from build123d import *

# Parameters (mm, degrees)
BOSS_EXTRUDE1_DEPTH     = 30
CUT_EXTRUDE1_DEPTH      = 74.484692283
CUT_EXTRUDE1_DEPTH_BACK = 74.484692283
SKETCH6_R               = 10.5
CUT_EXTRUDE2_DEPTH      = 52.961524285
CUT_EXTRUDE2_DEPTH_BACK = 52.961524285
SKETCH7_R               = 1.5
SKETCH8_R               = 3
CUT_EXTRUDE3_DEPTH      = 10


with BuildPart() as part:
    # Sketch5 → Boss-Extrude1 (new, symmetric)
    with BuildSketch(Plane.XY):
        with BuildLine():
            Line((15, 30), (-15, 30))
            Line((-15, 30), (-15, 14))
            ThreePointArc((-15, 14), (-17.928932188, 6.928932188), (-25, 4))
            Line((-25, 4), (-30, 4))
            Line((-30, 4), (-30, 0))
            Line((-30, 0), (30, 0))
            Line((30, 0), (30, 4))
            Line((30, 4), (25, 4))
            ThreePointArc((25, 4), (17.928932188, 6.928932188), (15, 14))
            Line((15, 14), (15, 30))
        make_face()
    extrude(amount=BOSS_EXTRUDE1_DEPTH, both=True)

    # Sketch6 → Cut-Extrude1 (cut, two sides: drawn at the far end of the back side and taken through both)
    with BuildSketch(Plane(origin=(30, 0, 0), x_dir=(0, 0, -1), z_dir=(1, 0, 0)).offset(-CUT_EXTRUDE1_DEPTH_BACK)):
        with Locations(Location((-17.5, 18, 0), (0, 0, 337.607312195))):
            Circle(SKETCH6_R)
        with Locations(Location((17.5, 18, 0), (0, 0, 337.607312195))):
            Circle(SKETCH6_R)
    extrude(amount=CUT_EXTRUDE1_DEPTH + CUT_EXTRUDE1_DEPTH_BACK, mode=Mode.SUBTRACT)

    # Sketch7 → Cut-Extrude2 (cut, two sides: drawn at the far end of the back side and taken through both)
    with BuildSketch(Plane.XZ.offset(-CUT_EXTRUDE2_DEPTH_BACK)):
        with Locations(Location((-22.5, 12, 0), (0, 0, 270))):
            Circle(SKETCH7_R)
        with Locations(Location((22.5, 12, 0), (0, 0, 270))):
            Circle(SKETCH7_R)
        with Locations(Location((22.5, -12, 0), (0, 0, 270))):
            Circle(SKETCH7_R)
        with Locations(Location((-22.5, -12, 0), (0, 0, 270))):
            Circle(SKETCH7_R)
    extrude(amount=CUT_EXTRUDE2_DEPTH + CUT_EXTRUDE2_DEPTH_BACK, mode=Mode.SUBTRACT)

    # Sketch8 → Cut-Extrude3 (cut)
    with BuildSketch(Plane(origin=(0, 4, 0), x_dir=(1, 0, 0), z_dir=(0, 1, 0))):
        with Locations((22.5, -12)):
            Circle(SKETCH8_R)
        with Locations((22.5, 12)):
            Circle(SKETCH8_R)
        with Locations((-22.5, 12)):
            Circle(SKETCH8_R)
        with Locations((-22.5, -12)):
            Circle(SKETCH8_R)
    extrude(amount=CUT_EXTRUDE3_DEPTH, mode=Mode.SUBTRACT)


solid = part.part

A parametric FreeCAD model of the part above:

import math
import FreeCAD as App
import Part
import Sketcher
from FreeCAD import Vector
Q = App.Units.Quantity

doc = App.newDocument("Part")
body = doc.addObject("PartDesign::Body", "Body")

# Sketch on XY plane
sketch1 = doc.addObject("Sketcher::SketchObject", "Sketch")
body.addObject(sketch1)
sketch1.AttachmentSupport = (doc.XY_Plane, [""])
sketch1.MapMode = "FlatFace"
sketch1.addGeometry(Part.LineSegment(Vector(15, 30, 0), Vector(-15, 30, 0)), False)
sketch1.addGeometry(Part.LineSegment(Vector(-15, 30, 0), Vector(-15, 14, 0)), False)
sketch1.addGeometry(Part.ArcOfCircle(Part.Circle(Vector(-25, 14, 0), Vector(0, 0, 1), 10), math.radians(-90), math.radians(0)), False)
sketch1.addGeometry(Part.LineSegment(Vector(-25, 4, 0), Vector(-30, 4, 0)), False)
sketch1.addGeometry(Part.LineSegment(Vector(-30, 4, 0), Vector(-30, 0, 0)), False)
sketch1.addGeometry(Part.LineSegment(Vector(-30, 0, 0), Vector(30, 0, 0)), False)
sketch1.addGeometry(Part.LineSegment(Vector(30, 0, 0), Vector(30, 4, 0)), False)
sketch1.addGeometry(Part.LineSegment(Vector(30, 4, 0), Vector(25, 4, 0)), False)
sketch1.addGeometry(Part.ArcOfCircle(Part.Circle(Vector(25, 14, 0), Vector(0, 0, 1), 10), math.radians(180), math.radians(270)), False)
sketch1.addGeometry(Part.LineSegment(Vector(15, 14, 0), Vector(15, 30, 0)), False)
sketch1.addConstraint(Sketcher.Constraint("Coincident", 0, 2, 1, 1))
sketch1.addConstraint(Sketcher.Constraint("Tangent", 1, 2, 2, 2))
sketch1.addConstraint(Sketcher.Constraint("Tangent", 2, 1, 3, 1))
sketch1.addConstraint(Sketcher.Constraint("Coincident", 3, 2, 4, 1))
sketch1.addConstraint(Sketcher.Constraint("Coincident", 4, 2, 5, 1))
sketch1.addConstraint(Sketcher.Constraint("Coincident", 5, 2, 6, 1))
sketch1.addConstraint(Sketcher.Constraint("Coincident", 6, 2, 7, 1))
sketch1.addConstraint(Sketcher.Constraint("Tangent", 7, 2, 8, 2))
sketch1.addConstraint(Sketcher.Constraint("Tangent", 8, 1, 9, 1))
sketch1.addConstraint(Sketcher.Constraint("Coincident", 9, 2, 0, 1))
sketch1.addConstraint(Sketcher.Constraint("Horizontal", 0))
sketch1.addConstraint(Sketcher.Constraint("Vertical", 1))
sketch1.addConstraint(Sketcher.Constraint("Horizontal", 3))
sketch1.addConstraint(Sketcher.Constraint("Vertical", 4))
sketch1.addConstraint(Sketcher.Constraint("Horizontal", 5))
sketch1.addConstraint(Sketcher.Constraint("Vertical", 6))
sketch1.addConstraint(Sketcher.Constraint("Horizontal", 7))
sketch1.addConstraint(Sketcher.Constraint("Vertical", 9))
sketch1.addConstraint(Sketcher.Constraint("Equal", 2, 8))
sketch1.addConstraint(Sketcher.Constraint("Symmetric", 4, 2, 5, 2, -1, 1))
sketch1.addConstraint(Sketcher.Constraint("Symmetric", 2, 3, 8, 3, -2))
sketch1.addConstraint(Sketcher.Constraint("Radius", 2, Q("10 mm")))
sketch1.addConstraint(Sketcher.Constraint("DistanceX", 0, 2, 0, 1, Q("30 mm")))
sketch1.addConstraint(Sketcher.Constraint("DistanceX", 3, 2, 3, 1, Q("5 mm")))
sketch1.addConstraint(Sketcher.Constraint("DistanceY", 1, 2, 1, 1, Q("16 mm")))
sketch1.addConstraint(Sketcher.Constraint("DistanceY", 4, 2, 4, 1, Q("4 mm")))
pad1 = doc.addObject("PartDesign::Pad", "Pad")
body.addObject(pad1)
pad1.Profile = sketch1
pad1.Length = 60
pad1.Midplane = True

# Sketch on YZ plane
sketch2 = doc.addObject("Sketcher::SketchObject", "Sketch001")
body.addObject(sketch2)
sketch2.AttachmentSupport = (doc.YZ_Plane, [""])
sketch2.MapMode = "FlatFace"
sketch2.AttachmentOffset = App.Placement(Vector(0, 0, 30), App.Rotation())
sketch2.addGeometry(Part.Circle(Vector(18, 18, 0), Vector(0, 0, 1), 10), False)
sketch2.addGeometry(Part.Circle(Vector(18, -18, 0), Vector(0, 0, 1), 10), False)
sketch2.addConstraint(Sketcher.Constraint("Equal", 0, 1))
sketch2.addConstraint(Sketcher.Constraint("Symmetric", 0, 3, 1, 3, -1))
sketch2.addConstraint(Sketcher.Constraint("Diameter", 0, Q("21 mm")))
sketch2.addConstraint(Sketcher.Constraint("DistanceX", -1, 1, 0, 3, Q("18 mm")))
sketch2.addConstraint(Sketcher.Constraint("DistanceY", 1, 3, 0, 3, Q("35 mm")))
pocket1 = doc.addObject("PartDesign::Pocket", "Pocket")
body.addObject(pocket1)
pocket1.Profile = sketch2
pocket1.Type = "ThroughAll"
pocket1.Midplane = True

# Sketch on XZ plane
sketch3 = doc.addObject("Sketcher::SketchObject", "Sketch002")
body.addObject(sketch3)
sketch3.AttachmentSupport = (doc.XZ_Plane, [""])
sketch3.MapMode = "FlatFace"
sketch3.addGeometry(Part.Circle(Vector(-22.5, 12, 0), Vector(0, 0, 1), 1.5), False)
sketch3.addGeometry(Part.Circle(Vector(22.5, 12, 0), Vector(0, 0, 1), 1.5), False)
sketch3.addGeometry(Part.Circle(Vector(22.5, -12, 0), Vector(0, 0, 1), 1.5), False)
sketch3.addGeometry(Part.Circle(Vector(-22.5, -12, 0), Vector(0, 0, 1), 1.5), False)
sketch3.addConstraint(Sketcher.Constraint("Equal", 0, 1))
sketch3.addConstraint(Sketcher.Constraint("Equal", 1, 2))
sketch3.addConstraint(Sketcher.Constraint("Equal", 2, 3))
sketch3.addConstraint(Sketcher.Constraint("Symmetric", 0, 3, 2, 3, -1, 1))
sketch3.addConstraint(Sketcher.Constraint("Symmetric", 1, 3, 3, 3, -1, 1))
sketch3.addConstraint(Sketcher.Constraint("Symmetric", 0, 3, 1, 3, -2))
sketch3.addConstraint(Sketcher.Constraint("Diameter", 0, Q("3 mm")))
sketch3.addConstraint(Sketcher.Constraint("DistanceY", -1, 1, 0, 3, Q("12 mm")))
sketch3.addConstraint(Sketcher.Constraint("DistanceX", 0, 3, 1, 3, Q("45 mm")))
pocket2 = doc.addObject("PartDesign::Pocket", "Pocket001")
body.addObject(pocket2)
pocket2.Profile = sketch3
pocket2.Type = "ThroughAll"
pocket2.Midplane = True

# Sketch on XZ plane
sketch4 = doc.addObject("Sketcher::SketchObject", "Sketch003")
body.addObject(sketch4)
sketch4.AttachmentSupport = (doc.XZ_Plane, [""])
sketch4.MapMode = "FlatFace"
sketch4.AttachmentOffset = App.Placement(Vector(0, 0, -4), App.Rotation())
sketch4.addGeometry(Part.Circle(Vector(22.5, 12, 0), Vector(0, 0, 1), 3), False)
sketch4.addGeometry(Part.Circle(Vector(22.5, -12, 0), Vector(0, 0, 1), 3), False)
sketch4.addGeometry(Part.Circle(Vector(-22.5, -12, 0), Vector(0, 0, 1), 3), False)
sketch4.addGeometry(Part.Circle(Vector(-22.5, 12, 0), Vector(0, 0, 1), 3), False)
sketch4.addConstraint(Sketcher.Constraint("Equal", 0, 1))
sketch4.addConstraint(Sketcher.Constraint("Equal", 1, 2))
sketch4.addConstraint(Sketcher.Constraint("Equal", 2, 3))
sketch4.addConstraint(Sketcher.Constraint("Symmetric", 0, 3, 2, 3, -1, 1))
sketch4.addConstraint(Sketcher.Constraint("Symmetric", 1, 3, 3, 3, -1, 1))
sketch4.addConstraint(Sketcher.Constraint("Symmetric", 1, 3, 2, 3, -2))
sketch4.addConstraint(Sketcher.Constraint("Diameter", 0, Q("6 mm")))
sketch4.addConstraint(Sketcher.Constraint("DistanceY", -1, 1, 0, 3, Q("12 mm")))
sketch4.addConstraint(Sketcher.Constraint("DistanceX", 2, 3, 1, 3, Q("45 mm")))
pocket3 = doc.addObject("PartDesign::Pocket", "Pocket002")
body.addObject(pocket3)
pocket3.Profile = sketch4
pocket3.Length = 10

doc.recompute()
